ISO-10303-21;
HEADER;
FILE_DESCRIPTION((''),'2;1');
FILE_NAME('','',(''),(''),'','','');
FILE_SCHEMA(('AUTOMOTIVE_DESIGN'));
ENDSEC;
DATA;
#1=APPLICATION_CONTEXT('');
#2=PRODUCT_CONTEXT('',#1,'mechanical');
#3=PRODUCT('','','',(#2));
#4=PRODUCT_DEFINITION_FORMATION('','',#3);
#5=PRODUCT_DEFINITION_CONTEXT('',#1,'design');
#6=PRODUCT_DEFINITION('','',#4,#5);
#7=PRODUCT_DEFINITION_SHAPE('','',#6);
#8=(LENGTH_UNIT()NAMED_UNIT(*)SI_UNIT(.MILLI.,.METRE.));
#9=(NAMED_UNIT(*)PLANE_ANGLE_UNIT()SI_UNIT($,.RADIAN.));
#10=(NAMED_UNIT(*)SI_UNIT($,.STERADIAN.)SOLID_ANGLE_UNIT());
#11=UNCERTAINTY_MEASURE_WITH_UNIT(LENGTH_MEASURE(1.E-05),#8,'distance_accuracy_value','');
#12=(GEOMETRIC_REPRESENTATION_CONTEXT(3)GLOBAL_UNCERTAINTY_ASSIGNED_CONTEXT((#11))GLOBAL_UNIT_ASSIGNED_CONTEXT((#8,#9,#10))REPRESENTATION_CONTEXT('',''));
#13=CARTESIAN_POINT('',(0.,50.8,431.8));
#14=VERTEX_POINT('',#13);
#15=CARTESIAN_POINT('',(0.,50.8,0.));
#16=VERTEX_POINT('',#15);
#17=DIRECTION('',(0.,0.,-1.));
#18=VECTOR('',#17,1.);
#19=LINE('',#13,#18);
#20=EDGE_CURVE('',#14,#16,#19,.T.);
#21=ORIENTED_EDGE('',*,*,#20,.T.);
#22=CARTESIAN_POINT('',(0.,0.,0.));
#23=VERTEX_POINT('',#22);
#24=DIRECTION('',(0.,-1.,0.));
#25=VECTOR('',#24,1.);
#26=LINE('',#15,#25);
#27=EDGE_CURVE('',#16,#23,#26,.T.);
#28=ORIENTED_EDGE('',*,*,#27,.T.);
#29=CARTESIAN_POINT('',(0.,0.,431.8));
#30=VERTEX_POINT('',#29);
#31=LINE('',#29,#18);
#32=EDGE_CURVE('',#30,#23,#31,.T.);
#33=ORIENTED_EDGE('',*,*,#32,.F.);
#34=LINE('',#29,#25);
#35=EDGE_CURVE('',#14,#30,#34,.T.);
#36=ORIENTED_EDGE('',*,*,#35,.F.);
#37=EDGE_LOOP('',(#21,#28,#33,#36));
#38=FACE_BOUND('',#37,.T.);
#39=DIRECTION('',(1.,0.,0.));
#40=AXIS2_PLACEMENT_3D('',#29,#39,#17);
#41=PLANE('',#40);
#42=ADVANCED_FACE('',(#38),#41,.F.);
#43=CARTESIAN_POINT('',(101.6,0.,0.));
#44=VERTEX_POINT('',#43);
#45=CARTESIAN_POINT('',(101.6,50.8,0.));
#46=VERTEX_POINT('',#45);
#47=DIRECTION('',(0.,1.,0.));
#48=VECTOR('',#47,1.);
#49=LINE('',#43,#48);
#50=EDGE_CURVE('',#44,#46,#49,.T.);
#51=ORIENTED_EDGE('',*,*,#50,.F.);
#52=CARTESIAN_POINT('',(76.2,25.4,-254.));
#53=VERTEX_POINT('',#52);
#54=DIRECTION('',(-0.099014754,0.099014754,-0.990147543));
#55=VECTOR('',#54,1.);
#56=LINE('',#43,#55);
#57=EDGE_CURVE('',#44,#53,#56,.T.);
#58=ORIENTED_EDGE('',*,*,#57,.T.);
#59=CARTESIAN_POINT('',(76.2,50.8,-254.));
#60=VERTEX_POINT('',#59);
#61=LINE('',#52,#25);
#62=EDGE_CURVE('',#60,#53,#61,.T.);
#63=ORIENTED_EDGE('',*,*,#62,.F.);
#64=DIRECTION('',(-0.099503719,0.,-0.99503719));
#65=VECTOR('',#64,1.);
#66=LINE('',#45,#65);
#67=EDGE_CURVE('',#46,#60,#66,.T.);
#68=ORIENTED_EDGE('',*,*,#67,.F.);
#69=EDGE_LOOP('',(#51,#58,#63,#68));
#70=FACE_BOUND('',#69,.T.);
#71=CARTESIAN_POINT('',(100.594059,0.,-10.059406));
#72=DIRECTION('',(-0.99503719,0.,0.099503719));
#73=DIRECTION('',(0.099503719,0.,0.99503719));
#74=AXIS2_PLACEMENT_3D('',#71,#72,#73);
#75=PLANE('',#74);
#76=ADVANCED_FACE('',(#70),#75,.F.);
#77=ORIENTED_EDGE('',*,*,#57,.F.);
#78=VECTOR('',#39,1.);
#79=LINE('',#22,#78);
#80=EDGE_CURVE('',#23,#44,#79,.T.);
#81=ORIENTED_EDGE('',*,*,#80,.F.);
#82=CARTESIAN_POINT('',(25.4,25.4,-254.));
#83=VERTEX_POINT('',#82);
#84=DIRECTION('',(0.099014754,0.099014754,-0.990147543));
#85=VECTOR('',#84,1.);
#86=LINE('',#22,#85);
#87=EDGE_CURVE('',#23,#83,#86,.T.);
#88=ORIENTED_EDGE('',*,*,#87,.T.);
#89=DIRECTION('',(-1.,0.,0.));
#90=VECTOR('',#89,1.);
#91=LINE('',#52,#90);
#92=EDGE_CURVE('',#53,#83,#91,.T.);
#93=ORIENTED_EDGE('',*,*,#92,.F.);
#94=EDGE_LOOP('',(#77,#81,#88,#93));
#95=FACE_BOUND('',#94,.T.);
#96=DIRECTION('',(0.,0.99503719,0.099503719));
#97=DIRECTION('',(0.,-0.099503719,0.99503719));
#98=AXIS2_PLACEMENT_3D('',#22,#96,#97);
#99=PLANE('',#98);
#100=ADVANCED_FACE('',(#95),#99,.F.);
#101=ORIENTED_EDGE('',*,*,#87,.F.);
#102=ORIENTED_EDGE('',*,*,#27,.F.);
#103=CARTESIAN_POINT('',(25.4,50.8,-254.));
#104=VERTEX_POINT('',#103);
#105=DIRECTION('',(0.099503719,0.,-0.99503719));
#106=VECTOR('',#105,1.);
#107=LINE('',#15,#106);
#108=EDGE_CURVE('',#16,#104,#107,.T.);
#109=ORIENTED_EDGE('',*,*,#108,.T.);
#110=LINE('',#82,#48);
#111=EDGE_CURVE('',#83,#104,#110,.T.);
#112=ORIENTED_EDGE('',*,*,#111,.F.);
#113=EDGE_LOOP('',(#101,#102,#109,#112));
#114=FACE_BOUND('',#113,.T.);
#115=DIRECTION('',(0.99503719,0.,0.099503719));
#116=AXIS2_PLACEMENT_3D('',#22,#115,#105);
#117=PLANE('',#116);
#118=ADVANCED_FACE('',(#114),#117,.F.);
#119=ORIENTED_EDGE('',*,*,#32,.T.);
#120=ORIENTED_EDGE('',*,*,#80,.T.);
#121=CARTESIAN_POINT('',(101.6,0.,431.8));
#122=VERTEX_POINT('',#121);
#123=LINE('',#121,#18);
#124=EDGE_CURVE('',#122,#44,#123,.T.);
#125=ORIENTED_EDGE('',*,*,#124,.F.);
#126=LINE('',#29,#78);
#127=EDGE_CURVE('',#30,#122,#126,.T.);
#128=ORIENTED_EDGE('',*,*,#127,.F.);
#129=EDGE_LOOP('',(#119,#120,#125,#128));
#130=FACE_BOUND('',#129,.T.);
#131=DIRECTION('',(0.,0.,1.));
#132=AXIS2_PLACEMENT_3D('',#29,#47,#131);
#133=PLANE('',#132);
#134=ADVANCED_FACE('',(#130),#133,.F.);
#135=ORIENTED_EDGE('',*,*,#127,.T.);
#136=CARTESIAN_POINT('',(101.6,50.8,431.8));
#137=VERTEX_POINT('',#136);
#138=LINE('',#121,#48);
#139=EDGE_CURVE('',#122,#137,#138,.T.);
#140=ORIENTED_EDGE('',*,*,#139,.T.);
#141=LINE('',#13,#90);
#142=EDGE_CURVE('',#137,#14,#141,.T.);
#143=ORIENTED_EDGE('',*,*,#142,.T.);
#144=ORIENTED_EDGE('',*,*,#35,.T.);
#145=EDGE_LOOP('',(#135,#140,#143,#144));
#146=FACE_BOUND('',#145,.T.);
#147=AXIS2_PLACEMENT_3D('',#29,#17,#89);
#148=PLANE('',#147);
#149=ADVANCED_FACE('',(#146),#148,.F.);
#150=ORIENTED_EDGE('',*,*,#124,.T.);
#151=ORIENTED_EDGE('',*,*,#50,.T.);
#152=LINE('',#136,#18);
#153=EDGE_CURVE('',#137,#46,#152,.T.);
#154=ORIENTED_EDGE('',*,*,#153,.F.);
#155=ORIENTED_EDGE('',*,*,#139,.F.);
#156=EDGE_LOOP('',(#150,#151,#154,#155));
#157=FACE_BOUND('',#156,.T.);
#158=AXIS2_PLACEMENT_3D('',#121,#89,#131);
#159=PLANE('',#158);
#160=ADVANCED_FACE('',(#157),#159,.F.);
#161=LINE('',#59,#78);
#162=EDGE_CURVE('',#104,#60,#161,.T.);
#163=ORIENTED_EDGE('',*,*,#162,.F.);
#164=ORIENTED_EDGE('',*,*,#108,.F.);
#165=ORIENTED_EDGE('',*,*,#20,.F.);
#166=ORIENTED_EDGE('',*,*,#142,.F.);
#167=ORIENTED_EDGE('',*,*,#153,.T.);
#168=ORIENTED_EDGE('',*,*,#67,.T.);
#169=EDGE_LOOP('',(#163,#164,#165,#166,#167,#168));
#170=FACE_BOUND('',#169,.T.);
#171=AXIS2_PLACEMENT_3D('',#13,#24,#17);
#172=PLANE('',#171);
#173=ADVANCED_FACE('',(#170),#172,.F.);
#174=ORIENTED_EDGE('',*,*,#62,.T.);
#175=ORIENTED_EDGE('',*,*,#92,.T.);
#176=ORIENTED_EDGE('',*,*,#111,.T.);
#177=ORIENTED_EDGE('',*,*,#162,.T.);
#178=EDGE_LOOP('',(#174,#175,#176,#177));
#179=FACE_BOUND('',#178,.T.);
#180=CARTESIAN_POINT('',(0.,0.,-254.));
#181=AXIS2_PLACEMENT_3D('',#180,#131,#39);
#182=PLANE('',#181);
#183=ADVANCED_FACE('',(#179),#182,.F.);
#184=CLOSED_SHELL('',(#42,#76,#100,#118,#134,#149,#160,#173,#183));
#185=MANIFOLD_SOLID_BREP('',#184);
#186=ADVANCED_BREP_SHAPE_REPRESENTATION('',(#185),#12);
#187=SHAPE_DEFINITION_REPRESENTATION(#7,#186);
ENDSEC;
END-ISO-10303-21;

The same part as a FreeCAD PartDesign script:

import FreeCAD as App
import Part
import Sketcher
Q = App.Units.Quantity


def add_polygon(sketch, points):
    """Adds a closed chain of lines whose ends are joined by coincident constraints."""
    first, n = sketch.GeometryCount, len(points)
    for a, b in zip(points, points[1:] + points[:1]):
        sketch.addGeometry(Part.LineSegment(App.Vector(*a, 0), App.Vector(*b, 0)), False)
    for i in range(n):
        sketch.addConstraint(Sketcher.Constraint("Coincident", first + i, 2, first + (i + 1) % n, 1))

doc = App.newDocument("Part")
params = doc.addObject("Spreadsheet::Sheet", "Params")
for row, (alias, value) in enumerate([
    ("sketch1_width", "4 in"),
    ("sketch1_height", "2 in"),
    ("pad1_length", "17 in"),
    ("sketch2_width", "4 in"),
    ("sketch2_height", "2 in"),
    ("sketch3_width", "2 in"),
    ("sketch3_height", "1 in"),
], start=1):
    params.set(f"A{row}", alias)
    params.set(f"B{row}", "=" + value)
    params.setAlias(f"B{row}", alias)

body = doc.addObject("PartDesign::Body", "Body")

# Sketch on XY plane
sketch1 = doc.addObject("Sketcher::SketchObject", "Sketch")
body.addObject(sketch1)
sketch1.AttachmentSupport = (doc.XY_Plane, [""])
sketch1.MapMode = "FlatFace"
add_polygon(sketch1, [(0, 51), (0, 0), (102, 0), (102, 51)])  # lines 0-3
sketch1.addConstraint([
    Sketcher.Constraint("Vertical", 0),
    Sketcher.Constraint("Horizontal", 1),
    Sketcher.Constraint("Vertical", 2),
    Sketcher.Constraint("Horizontal", 3),
    Sketcher.Constraint("Coincident", 0, 2, -1, 1),
    Sketcher.Constraint("DistanceX", 1, 1, 1, 2, Q("4 in")),
    Sketcher.Constraint("DistanceY", 0, 2, 0, 1, Q("2 in")),
])
sketch1.setExpression("Constraints[9]", "Params.sketch1_width")
sketch1.setExpression("Constraints[10]", "Params.sketch1_height")
pad1 = doc.addObject("PartDesign::Pad", "Pad")
body.addObject(pad1)
pad1.Profile = sketch1
pad1.setExpression("Length", "Params.pad1_length")

# Sketch on XY plane
sketch2 = doc.addObject("Sketcher::SketchObject", "Sketch001")
body.addObject(sketch2)
sketch2.AttachmentSupport = (doc.XY_Plane, [""])
sketch2.MapMode = "FlatFace"
add_polygon(sketch2, [(0, 51), (0, 0), (102, 0), (102, 51)])  # lines 0-3
sketch2.addConstraint([
    Sketcher.Constraint("Vertical", 0),
    Sketcher.Constraint("Horizontal", 1),
    Sketcher.Constraint("Vertical", 2),
    Sketcher.Constraint("Horizontal", 3),
    Sketcher.Constraint("Coincident", 0, 2, -1, 1),
    Sketcher.Constraint("DistanceX", 1, 1, 1, 2, Q("4 in")),
    Sketcher.Constraint("DistanceY", 0, 2, 0, 1, Q("2 in")),
])
sketch2.setExpression("Constraints[9]", "Params.sketch2_width")
sketch2.setExpression("Constraints[10]", "Params.sketch2_height")

# Sketch on XY plane
sketch3 = doc.addObject("Sketcher::SketchObject", "Sketch002")
body.addObject(sketch3)
sketch3.AttachmentSupport = (doc.XY_Plane, [""])
sketch3.MapMode = "FlatFace"
sketch3.AttachmentOffset = App.Placement(App.Vector(0, 0, -10 * 25.4), App.Rotation())
add_polygon(sketch3, [(76, 51), (76, 25), (25, 25), (25, 51)])  # lines 0-3
sketch3.addConstraint([
    Sketcher.Constraint("Vertical", 0),
    Sketcher.Constraint("Horizontal", 1),
    Sketcher.Constraint("Vertical", 2),
    Sketcher.Constraint("Horizontal", 3),
    Sketcher.Constraint("DistanceX", 1, 2, 1, 1, Q("2 in")),
    Sketcher.Constraint("DistanceY", 0, 2, 0, 1, Q("1 in")),
    Sketcher.Constraint("DistanceX", -1, 1, 0, 2, Q("3 in")),
    Sketcher.Constraint("DistanceY", -1, 1, 0, 2, Q("1 in")),
])
sketch3.setExpression("Constraints[8]", "Params.sketch3_width")
sketch3.setExpression("Constraints[9]", "Params.sketch3_height")

additiveloft = doc.addObject("PartDesign::AdditiveLoft", "AdditiveLoft")
body.addObject(additiveloft)
additiveloft.Profile = sketch2
additiveloft.Sections = [sketch3]

doc.recompute()
